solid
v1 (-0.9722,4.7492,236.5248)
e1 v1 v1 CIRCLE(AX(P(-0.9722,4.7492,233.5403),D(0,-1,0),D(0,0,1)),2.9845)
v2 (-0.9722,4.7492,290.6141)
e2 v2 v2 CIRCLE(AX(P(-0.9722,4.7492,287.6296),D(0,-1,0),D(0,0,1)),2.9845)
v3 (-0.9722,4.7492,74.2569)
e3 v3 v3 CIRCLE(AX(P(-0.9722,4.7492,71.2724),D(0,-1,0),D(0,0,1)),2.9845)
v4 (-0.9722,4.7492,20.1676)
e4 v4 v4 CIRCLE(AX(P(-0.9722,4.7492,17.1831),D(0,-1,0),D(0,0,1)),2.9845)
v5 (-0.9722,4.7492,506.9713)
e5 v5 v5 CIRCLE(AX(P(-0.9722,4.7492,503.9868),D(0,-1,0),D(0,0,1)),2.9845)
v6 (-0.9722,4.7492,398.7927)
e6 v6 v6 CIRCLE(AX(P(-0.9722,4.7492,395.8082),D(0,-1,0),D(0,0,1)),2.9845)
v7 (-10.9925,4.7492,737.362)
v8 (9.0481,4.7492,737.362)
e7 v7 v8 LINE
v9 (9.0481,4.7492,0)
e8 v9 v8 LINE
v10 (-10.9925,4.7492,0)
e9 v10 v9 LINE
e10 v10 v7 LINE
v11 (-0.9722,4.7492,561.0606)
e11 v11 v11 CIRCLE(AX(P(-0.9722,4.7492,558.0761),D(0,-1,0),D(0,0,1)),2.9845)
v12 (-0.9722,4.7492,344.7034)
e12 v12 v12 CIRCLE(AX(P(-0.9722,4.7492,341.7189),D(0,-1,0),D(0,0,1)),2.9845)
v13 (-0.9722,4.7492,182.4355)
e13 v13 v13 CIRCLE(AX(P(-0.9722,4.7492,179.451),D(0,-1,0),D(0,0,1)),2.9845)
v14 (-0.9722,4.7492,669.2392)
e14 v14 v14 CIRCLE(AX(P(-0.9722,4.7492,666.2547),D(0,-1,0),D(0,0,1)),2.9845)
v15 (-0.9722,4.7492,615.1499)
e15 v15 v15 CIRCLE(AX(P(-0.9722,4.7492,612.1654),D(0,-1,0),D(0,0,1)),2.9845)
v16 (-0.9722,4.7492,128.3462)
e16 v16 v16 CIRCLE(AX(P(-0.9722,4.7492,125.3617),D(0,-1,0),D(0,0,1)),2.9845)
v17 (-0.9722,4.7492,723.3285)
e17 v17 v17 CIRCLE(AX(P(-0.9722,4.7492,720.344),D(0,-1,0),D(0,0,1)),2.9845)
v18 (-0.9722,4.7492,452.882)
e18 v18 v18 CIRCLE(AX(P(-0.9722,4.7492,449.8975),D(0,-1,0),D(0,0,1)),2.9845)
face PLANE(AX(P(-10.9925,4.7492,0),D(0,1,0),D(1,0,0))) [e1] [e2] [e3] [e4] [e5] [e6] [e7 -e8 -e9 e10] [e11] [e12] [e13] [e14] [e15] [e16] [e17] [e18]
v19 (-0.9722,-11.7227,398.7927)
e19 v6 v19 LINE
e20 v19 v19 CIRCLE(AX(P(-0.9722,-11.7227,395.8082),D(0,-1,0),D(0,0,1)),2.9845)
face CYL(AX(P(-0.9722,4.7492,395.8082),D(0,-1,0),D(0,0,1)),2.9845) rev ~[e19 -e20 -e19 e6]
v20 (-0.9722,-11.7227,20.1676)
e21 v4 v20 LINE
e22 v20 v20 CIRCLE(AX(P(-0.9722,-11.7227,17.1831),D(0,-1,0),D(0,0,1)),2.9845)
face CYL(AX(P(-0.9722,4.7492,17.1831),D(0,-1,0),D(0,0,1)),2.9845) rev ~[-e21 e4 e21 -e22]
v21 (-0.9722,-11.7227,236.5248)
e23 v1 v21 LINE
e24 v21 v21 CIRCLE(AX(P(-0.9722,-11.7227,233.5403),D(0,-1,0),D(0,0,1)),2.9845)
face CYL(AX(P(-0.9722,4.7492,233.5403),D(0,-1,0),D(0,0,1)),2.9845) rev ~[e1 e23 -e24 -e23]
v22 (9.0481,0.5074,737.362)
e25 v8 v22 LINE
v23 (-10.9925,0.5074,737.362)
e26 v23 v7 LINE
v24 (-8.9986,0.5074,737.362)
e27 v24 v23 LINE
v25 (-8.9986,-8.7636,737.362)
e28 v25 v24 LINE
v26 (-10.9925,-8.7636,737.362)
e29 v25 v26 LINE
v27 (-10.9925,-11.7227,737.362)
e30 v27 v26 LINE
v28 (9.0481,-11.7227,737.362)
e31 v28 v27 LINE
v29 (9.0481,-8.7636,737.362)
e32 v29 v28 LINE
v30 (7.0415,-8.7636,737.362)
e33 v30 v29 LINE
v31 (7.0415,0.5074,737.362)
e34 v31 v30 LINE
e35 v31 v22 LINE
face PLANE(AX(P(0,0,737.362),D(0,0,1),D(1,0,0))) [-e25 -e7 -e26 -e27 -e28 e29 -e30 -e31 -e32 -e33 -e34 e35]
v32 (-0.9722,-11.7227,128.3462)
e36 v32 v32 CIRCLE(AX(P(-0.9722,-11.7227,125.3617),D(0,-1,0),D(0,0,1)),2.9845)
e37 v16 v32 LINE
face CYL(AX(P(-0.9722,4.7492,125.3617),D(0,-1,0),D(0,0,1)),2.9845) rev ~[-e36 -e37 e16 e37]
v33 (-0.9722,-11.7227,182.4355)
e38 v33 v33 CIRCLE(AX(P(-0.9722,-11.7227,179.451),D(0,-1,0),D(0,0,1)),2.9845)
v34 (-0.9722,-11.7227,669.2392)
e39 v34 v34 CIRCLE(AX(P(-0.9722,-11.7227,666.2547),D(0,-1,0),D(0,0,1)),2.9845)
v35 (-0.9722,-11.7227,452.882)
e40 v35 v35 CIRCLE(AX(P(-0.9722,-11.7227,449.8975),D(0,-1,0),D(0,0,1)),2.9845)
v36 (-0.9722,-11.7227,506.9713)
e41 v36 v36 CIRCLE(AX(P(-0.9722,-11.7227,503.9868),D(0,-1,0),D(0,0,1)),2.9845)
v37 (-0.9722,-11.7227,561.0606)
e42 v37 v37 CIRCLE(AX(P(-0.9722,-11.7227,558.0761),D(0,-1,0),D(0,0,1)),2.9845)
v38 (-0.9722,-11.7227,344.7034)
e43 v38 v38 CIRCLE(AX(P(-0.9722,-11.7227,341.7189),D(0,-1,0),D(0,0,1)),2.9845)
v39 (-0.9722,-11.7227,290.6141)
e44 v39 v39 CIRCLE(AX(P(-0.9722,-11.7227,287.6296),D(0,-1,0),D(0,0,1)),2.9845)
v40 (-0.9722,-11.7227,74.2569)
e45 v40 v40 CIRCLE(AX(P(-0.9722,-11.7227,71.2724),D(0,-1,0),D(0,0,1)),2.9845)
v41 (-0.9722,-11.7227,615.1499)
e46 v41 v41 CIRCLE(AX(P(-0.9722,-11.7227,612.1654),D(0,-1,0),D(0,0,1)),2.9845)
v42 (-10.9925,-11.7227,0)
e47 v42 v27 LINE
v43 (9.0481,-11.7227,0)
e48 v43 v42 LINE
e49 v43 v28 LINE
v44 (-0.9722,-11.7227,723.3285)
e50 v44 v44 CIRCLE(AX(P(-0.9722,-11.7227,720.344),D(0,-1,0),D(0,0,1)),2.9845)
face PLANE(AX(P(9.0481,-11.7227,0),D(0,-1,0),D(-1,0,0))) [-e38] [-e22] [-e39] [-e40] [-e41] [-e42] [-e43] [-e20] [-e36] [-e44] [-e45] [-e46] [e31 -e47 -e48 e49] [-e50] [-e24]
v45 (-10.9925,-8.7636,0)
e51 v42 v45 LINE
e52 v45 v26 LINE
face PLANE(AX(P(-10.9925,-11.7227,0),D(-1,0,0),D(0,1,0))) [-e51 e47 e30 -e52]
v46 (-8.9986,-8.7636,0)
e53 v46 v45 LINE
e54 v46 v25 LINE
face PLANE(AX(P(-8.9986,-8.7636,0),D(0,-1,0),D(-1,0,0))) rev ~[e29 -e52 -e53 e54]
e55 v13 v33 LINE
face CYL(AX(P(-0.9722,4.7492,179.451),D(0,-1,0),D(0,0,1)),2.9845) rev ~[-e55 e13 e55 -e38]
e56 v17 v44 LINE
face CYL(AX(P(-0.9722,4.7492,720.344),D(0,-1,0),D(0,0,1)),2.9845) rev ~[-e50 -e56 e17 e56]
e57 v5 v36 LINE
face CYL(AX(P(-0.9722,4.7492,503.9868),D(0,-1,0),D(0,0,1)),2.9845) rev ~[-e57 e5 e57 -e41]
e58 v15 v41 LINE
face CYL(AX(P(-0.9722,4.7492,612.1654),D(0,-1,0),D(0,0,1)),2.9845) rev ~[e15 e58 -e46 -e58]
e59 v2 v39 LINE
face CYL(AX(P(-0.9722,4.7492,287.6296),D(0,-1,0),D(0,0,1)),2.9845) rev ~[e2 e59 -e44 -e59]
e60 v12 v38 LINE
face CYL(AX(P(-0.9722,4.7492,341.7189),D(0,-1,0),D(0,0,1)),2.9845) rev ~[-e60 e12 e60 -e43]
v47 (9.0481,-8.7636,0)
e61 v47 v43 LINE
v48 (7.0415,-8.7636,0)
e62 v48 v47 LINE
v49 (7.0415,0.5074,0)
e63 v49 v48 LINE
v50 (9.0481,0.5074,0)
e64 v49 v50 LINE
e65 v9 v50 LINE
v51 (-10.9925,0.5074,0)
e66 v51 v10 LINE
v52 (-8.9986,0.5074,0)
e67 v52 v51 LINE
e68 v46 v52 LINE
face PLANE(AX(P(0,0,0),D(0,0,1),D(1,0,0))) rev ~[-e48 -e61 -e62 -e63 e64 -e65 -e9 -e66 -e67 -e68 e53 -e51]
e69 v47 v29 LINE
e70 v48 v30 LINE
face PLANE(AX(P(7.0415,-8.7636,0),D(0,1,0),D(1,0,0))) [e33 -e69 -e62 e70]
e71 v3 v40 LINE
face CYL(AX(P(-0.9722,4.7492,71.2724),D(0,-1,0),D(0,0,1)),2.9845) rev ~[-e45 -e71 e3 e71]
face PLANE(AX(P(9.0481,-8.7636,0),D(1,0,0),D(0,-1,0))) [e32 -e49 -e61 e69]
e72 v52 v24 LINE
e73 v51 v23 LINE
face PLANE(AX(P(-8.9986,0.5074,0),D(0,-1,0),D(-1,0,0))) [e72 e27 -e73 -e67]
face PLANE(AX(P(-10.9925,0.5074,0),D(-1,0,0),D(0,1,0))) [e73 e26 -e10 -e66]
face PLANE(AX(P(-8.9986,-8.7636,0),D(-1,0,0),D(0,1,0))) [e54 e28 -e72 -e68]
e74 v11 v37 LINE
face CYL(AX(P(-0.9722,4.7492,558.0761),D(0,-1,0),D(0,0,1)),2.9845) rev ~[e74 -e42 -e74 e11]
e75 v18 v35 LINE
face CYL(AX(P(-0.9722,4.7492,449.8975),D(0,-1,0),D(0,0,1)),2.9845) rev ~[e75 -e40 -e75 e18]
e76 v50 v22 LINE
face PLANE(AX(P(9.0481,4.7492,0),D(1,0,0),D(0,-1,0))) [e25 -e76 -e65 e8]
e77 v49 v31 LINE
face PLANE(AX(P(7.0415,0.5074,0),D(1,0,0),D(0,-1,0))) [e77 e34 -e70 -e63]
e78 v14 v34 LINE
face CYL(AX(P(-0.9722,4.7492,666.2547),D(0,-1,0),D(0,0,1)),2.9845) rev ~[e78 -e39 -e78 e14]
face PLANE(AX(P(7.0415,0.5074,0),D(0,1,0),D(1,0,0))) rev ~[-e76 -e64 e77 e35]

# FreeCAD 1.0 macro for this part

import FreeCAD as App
import Part
import Sketcher

V = App.Vector
Q = App.Units.Quantity


def add_polygon(sketch, points):
    """Adds a closed chain of lines whose ends are joined by coincident constraints."""
    first, n = sketch.GeometryCount, len(points)
    for a, b in zip(points, points[1:] + points[:1]):
        sketch.addGeometry(Part.LineSegment(App.Vector(*a, 0), App.Vector(*b, 0)), False)
    for i in range(n):
        sketch.addConstraint(Sketcher.Constraint("Coincident", first + i, 2, first + (i + 1) % n, 1))

doc = App.newDocument("Part")
body = doc.addObject("PartDesign::Body", "Body")

# Sketch on XY plane
sketch1 = doc.addObject("Sketcher::SketchObject", "Sketch")
body.addObject(sketch1)
sketch1.AttachmentSupport = (doc.XY_Plane, [""])
sketch1.MapMode = "FlatFace"
add_polygon(sketch1, [(9.0481, 4.7492), (-10.9925, 4.7492), (-10.9925, 0.5074), (-8.9986, 0.5074), (-8.9986, -8.7636), (-10.9925, -8.7636), (-10.9925, -11.7227), (9.0481, -11.7227), (9.0481, -8.7636), (7.0415, -8.7636), (7.0415, 0.5074), (9.0481, 0.5074)])  # lines 0-11
sketch1.addConstraint(Sketcher.Constraint("Horizontal", 0))
sketch1.addConstraint(Sketcher.Constraint("Vertical", 1))
sketch1.addConstraint(Sketcher.Constraint("Horizontal", 2))
sketch1.addConstraint(Sketcher.Constraint("Vertical", 3))
sketch1.addConstraint(Sketcher.Constraint("Horizontal", 4))
sketch1.addConstraint(Sketcher.Constraint("Vertical", 5))
sketch1.addConstraint(Sketcher.Constraint("Horizontal", 6))
sketch1.addConstraint(Sketcher.Constraint("Vertical", 7))
sketch1.addConstraint(Sketcher.Constraint("Horizontal", 8))
sketch1.addConstraint(Sketcher.Constraint("Vertical", 9))
sketch1.addConstraint(Sketcher.Constraint("Horizontal", 10))
sketch1.addConstraint(Sketcher.Constraint("Vertical", 11))
sketch1.addConstraint(Sketcher.Constraint("Horizontal", 4, 2, 7, 2))
sketch1.addConstraint(Sketcher.Constraint("Horizontal", 2, 2, 9, 2))
sketch1.addConstraint(Sketcher.Constraint("Vertical", 1, 2, 4, 2))
sketch1.addConstraint(Sketcher.Constraint("Vertical", 7, 2, 10, 2))
sketch1.addConstraint(Sketcher.Constraint("DistanceX", 0, 2, 0, 1, Q("0.789 in")))
sketch1.addConstraint(Sketcher.Constraint("DistanceX", 8, 2, 8, 1, Q("0.079 in")))
sketch1.addConstraint(Sketcher.Constraint("DistanceY", 1, 2, 1, 1, Q("0.167 in")))
sketch1.addConstraint(Sketcher.Constraint("DistanceY", 3, 2, 3, 1, Q("0.365 in")))
sketch1.addConstraint(Sketcher.Constraint("DistanceX", 2, 1, 2, 2, Q("0.0785 in")))
sketch1.addConstraint(Sketcher.Constraint("DistanceY", 5, 2, 5, 1, Q("0.1165 in")))
sketch1.addConstraint(Sketcher.Constraint("DistanceX", 0, 2, -1, 1, 10.9925))
sketch1.addConstraint(Sketcher.Constraint("DistanceY", -1, 1, 0, 2, 4.7492))
pad1 = doc.addObject("PartDesign::Pad", "Pad")
body.addObject(pad1)
pad1.Profile = sketch1
pad1.Length = Q("29.03 in")

# Sketch on XZ plane
sketch2 = doc.addObject("Sketcher::SketchObject", "Sketch001")
body.addObject(sketch2)
sketch2.AttachmentSupport = (doc.XZ_Plane, [""])
sketch2.MapMode = "FlatFace"
sketch2.AttachmentOffset = App.Placement(V(0, 0, -4.7492), App.Rotation())
sketch2.addGeometry(Part.Circle(V(-0.9722, 17.1831, 0), V(0, 0, 1), 2.9845), False)
sketch2.addGeometry(Part.Circle(V(-0.9722, 71.2724, 0), V(0, 0, 1), 2.9845), False)
sketch2.addGeometry(Part.Circle(V(-0.9722, 125.3617, 0), V(0, 0, 1), 2.9845), False)
sketch2.addGeometry(Part.Circle(V(-0.9722, 179.451, 0), V(0, 0, 1), 2.9845), False)
sketch2.addGeometry(Part.Circle(V(-0.9722, 233.5403, 0), V(0, 0, 1), 2.9845), False)
sketch2.addGeometry(Part.Circle(V(-0.9722, 287.6296, 0), V(0, 0, 1), 2.9845), False)
sketch2.addGeometry(Part.Circle(V(-0.9722, 341.7189, 0), V(0, 0, 1), 2.9845), False)
sketch2.addGeometry(Part.Circle(V(-0.9722, 395.8082, 0), V(0, 0, 1), 2.9845), False)
sketch2.addGeometry(Part.Circle(V(-0.9722, 449.8975, 0), V(0, 0, 1), 2.9845), False)
sketch2.addGeometry(Part.Circle(V(-0.9722, 503.9868, 0), V(0, 0, 1), 2.9845), False)
sketch2.addGeometry(Part.Circle(V(-0.9722, 558.0761, 0), V(0, 0, 1), 2.9845), False)
sketch2.addGeometry(Part.Circle(V(-0.9722, 612.1654, 0), V(0, 0, 1), 2.9845), False)
sketch2.addGeometry(Part.Circle(V(-0.9722, 666.2547, 0), V(0, 0, 1), 2.9845), False)
sketch2.addGeometry(Part.Circle(V(-0.9722, 720.344, 0), V(0, 0, 1), 2.9845), False)
sketch2.addConstraint(Sketcher.Constraint("Equal", 0, 1))
sketch2.addConstraint(Sketcher.Constraint("Equal", 1, 2))
sketch2.addConstraint(Sketcher.Constraint("Equal", 2, 3))
sketch2.addConstraint(Sketcher.Constraint("Equal", 3, 4))
sketch2.addConstraint(Sketcher.Constraint("Equal", 4, 5))
sketch2.addConstraint(Sketcher.Constraint("Equal", 5, 6))
sketch2.addConstraint(Sketcher.Constraint("Equal", 6, 7))
sketch2.addConstraint(Sketcher.Constraint("Equal", 7, 8))
sketch2.addConstraint(Sketcher.Constraint("Equal", 8, 9))
sketch2.addConstraint(Sketcher.Constraint("Equal", 9, 10))
sketch2.addConstraint(Sketcher.Constraint("Equal", 10, 11))
sketch2.addConstraint(Sketcher.Constraint("Equal", 11, 12))
sketch2.addConstraint(Sketcher.Constraint("Equal", 12, 13))
sketch2.addConstraint(Sketcher.Constraint("Vertical", 0, 3, 1, 3))
sketch2.addConstraint(Sketcher.Constraint("Vertical", 1, 3, 2, 3))
sketch2.addConstraint(Sketcher.Constraint("Vertical", 2, 3, 3, 3))
sketch2.addConstraint(Sketcher.Constraint("Vertical", 3, 3, 4, 3))
sketch2.addConstraint(Sketcher.Constraint("Vertical", 4, 3, 5, 3))
sketch2.addConstraint(Sketcher.Constraint("Vertical", 5, 3, 6, 3))
sketch2.addConstraint(Sketcher.Constraint("Vertical", 6, 3, 7, 3))
sketch2.addConstraint(Sketcher.Constraint("Vertical", 7, 3, 8, 3))
sketch2.addConstraint(Sketcher.Constraint("Vertical", 8, 3, 9, 3))
sketch2.addConstraint(Sketcher.Constraint("Vertical", 9, 3, 10, 3))
sketch2.addConstraint(Sketcher.Constraint("Vertical", 10, 3, 11, 3))
sketch2.addConstraint(Sketcher.Constraint("Vertical", 11, 3, 12, 3))
sketch2.addConstraint(Sketcher.Constraint("Vertical", 12, 3, 13, 3))
sketch2.addConstraint(Sketcher.Constraint("Diameter", 0, Q("0.235 in")))
sketch2.addConstraint(Sketcher.Constraint("DistanceY", -1, 1, 13, 3, Q("28.36 in")))
sketch2.addConstraint(Sketcher.Constraint("DistanceY", -1, 1, 1, 3, Q("2.806 in")))
sketch2.addConstraint(Sketcher.Constraint("DistanceY", -1, 1, 3, 3, Q("7.065 in")))
sketch2.addConstraint(Sketcher.Constraint("DistanceY", -1, 1, 5, 3, Q("11.324 in")))
sketch2.addConstraint(Sketcher.Constraint("DistanceY", -1, 1, 7, 3, Q("15.583 in")))
sketch2.addConstraint(Sketcher.Constraint("DistanceY", -1, 1, 9, 3, Q("19.842 in")))
sketch2.addConstraint(Sketcher.Constraint("DistanceY", -1, 1, 11, 3, Q("24.101 in")))
sketch2.addConstraint(Sketcher.Constraint("DistanceY", 0, 3, 2, 3, Q("4.259 in")))
sketch2.addConstraint(Sketcher.Constraint("DistanceY", 2, 3, 4, 3, Q("4.259 in")))
sketch2.addConstraint(Sketcher.Constraint("DistanceY", 4, 3, 6, 3, Q("4.259 in")))
sketch2.addConstraint(Sketcher.Constraint("DistanceY", 6, 3, 8, 3, Q("4.259 in")))
sketch2.addConstraint(Sketcher.Constraint("DistanceY", 8, 3, 10, 3, Q("4.259 in")))
sketch2.addConstraint(Sketcher.Constraint("DistanceY", 10, 3, 12, 3, Q("4.259 in")))
sketch2.addConstraint(Sketcher.Constraint("DistanceY", -1, 1, 0, 3, Q("0.6765 in")))
sketch2.addConstraint(Sketcher.Constraint("DistanceX", 0, 3, -1, 1, 0.9722))
doc.recompute()
hole = doc.addObject("PartDesign::Hole", "Hole")
body.addObject(hole)
hole.Profile = sketch2
hole.ThreadType = "None"
hole.Diameter = Q("0.235 in")
hole.DepthType = "ThroughAll"
hole.Reversed = True

doc.recompute()
